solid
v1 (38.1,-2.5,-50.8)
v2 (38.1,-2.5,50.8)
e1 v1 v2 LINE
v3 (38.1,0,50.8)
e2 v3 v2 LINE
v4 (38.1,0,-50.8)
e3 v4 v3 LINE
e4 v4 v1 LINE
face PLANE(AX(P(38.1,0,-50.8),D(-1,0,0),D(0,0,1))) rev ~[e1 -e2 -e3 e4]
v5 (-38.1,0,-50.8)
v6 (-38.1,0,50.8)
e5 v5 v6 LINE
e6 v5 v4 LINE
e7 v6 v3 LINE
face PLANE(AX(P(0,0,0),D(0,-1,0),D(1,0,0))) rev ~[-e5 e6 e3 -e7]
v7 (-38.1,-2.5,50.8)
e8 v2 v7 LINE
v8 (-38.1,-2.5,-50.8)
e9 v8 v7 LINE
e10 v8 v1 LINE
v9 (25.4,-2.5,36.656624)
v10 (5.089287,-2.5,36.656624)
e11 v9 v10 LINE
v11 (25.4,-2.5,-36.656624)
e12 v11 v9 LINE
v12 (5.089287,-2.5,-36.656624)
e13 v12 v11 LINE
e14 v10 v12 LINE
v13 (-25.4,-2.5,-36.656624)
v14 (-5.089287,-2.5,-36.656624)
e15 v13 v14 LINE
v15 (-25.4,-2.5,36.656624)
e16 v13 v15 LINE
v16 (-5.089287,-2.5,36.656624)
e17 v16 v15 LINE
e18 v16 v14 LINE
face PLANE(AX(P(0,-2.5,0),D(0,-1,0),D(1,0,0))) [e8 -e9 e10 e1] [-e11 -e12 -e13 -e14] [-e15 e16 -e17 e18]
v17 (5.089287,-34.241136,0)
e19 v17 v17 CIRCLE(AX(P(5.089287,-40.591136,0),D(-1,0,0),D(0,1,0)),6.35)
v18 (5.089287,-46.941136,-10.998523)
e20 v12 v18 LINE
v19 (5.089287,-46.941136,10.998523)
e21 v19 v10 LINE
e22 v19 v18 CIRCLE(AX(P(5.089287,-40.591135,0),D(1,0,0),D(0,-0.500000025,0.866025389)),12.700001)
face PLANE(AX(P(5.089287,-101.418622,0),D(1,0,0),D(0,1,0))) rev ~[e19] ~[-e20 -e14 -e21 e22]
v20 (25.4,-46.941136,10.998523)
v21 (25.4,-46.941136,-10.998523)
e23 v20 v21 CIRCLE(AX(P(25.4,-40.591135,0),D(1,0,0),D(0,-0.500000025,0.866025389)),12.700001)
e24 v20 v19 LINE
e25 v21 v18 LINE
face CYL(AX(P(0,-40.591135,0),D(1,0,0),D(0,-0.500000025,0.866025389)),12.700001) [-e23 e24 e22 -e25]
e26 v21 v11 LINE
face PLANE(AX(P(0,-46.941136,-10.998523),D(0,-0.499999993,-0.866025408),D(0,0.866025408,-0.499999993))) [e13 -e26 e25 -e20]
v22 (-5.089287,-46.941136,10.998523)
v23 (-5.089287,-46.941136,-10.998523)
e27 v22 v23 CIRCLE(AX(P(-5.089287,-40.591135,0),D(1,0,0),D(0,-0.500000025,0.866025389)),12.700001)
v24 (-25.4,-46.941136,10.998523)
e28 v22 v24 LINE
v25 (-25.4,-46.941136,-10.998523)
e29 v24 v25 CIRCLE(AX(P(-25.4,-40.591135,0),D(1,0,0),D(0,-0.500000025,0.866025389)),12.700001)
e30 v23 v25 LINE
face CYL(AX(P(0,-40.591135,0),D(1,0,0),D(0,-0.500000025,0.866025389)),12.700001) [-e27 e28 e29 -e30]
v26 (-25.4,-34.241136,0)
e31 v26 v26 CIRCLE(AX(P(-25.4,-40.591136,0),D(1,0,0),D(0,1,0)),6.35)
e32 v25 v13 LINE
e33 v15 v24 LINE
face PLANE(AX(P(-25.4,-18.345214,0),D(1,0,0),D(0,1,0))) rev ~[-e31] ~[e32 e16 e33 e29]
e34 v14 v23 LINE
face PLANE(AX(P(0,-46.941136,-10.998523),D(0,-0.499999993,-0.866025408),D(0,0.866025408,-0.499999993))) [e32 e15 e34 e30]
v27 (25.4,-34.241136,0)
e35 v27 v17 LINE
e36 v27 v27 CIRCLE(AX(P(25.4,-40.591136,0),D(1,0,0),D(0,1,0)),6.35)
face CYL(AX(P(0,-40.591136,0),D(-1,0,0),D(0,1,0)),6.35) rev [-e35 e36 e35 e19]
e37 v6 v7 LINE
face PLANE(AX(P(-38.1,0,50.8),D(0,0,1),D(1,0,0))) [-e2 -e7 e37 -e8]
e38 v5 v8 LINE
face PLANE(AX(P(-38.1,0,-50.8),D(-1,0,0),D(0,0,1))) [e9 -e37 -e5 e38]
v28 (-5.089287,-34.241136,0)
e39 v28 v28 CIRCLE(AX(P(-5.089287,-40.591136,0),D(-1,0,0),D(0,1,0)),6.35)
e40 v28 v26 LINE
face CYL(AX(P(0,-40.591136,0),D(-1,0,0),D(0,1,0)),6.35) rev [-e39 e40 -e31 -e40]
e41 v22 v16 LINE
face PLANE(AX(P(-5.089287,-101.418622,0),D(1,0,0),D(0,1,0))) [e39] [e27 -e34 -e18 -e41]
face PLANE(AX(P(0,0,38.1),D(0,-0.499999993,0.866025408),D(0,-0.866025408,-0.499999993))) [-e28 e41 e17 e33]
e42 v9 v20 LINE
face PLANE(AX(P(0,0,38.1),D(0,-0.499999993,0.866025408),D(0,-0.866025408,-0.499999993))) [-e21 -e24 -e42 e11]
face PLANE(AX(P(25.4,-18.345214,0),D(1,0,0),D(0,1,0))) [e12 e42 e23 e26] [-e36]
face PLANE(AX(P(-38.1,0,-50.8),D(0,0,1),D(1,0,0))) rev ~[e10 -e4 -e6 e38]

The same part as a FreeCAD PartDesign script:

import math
import FreeCAD as App
import Part
import Sketcher
Q = App.Units.Quantity

doc = App.newDocument("Part")
body = doc.addObject("PartDesign::Body", "Body")

sketch1 = body.newObject("Sketcher::SketchObject", "Sketch")
sketch1.AttachmentSupport = (doc.getObject("XZ_Plane"), [""])
sketch1.MapMode = "FlatFace"
sketch1.addGeometry([
    Part.LineSegment(App.Vector(-38.1, 50.8, 0), App.Vector(-38.1, -50.8, 0)),
    Part.LineSegment(App.Vector(-38.1, -50.8, 0), App.Vector(38.1, -50.8, 0)),
    Part.LineSegment(App.Vector(38.1, -50.8, 0), App.Vector(38.1, 50.8, 0)),
    Part.LineSegment(App.Vector(38.1, 50.8, 0), App.Vector(-38.1, 50.8, 0)),
], False)
sketch1.addConstraint([
    Sketcher.Constraint("Coincident", 0, 2, 1, 1),
    Sketcher.Constraint("Coincident", 1, 2, 2, 1),
    Sketcher.Constraint("Coincident", 2, 2, 3, 1),
    Sketcher.Constraint("Coincident", 3, 2, 0, 1),
    Sketcher.Constraint("Vertical", 0),
    Sketcher.Constraint("Horizontal", 1),
    Sketcher.Constraint("Vertical", 2),
    Sketcher.Constraint("Horizontal", 3),
    Sketcher.Constraint("Symmetric", 0, 2, 2, 2, -1, 1),
    Sketcher.Constraint("DistanceX", 1, 1, 1, 2, Q("3 in")),
    Sketcher.Constraint("DistanceY", 0, 2, 0, 1, Q("4 in")),
])
pad1 = body.newObject("PartDesign::Pad", "Pad")
pad1.Profile = sketch1
pad1.Length = 2.5

sketch2 = body.newObject("Sketcher::SketchObject", "Sketch001")
sketch2.AttachmentSupport = (doc.getObject("YZ_Plane"), [""])
sketch2.MapMode = "FlatFace"
sketch2.addGeometry([
    Part.LineSegment(App.Vector(-46.941136, -10.998523, 0), App.Vector(0, -38.1, 0)),
    Part.LineSegment(App.Vector(0, -38.1, 0), App.Vector(0, 38.1, 0)),
    Part.LineSegment(App.Vector(0, 38.1, 0), App.Vector(-46.941136, 10.998523, 0)),
    Part.ArcOfCircle(Part.Circle(App.Vector(-40.591135, 0, 0), App.Vector(0, 0, 1), 12.700001), math.radians(120.000002), math.radians(239.999998)),
    Part.Circle(App.Vector(-40.591136, 0, 0), App.Vector(0, 0, 1), 6.35),
], False)
sketch2.addConstraint([
    Sketcher.Constraint("Coincident", 0, 2, 1, 1),
    Sketcher.Constraint("Coincident", 1, 2, 2, 1),
    Sketcher.Constraint("Tangent", 2, 2, 3, 1),
    Sketcher.Constraint("Tangent", 3, 2, 0, 1),
    Sketcher.Constraint("Vertical", 1),
    Sketcher.Constraint("Coincident", 4, 3, 3, 3),
    Sketcher.Constraint("Symmetric", 0, 2, 1, 2, -1, 1),
    Sketcher.Constraint("PointOnObject", 3, 3, -1),
    Sketcher.Constraint("Diameter", 4, Q("0.5 in")),
    Sketcher.Constraint("Radius", 3, Q("0.5 in")),
    Sketcher.Constraint("DistanceY", 1, 1, 1, 2, Q("3 in")),
    Sketcher.Constraint("Angle", 0, Q("-30 deg")),
])
pad2 = body.newObject("PartDesign::Pad", "Pad001")
pad2.Profile = sketch2
pad2.Length = Q("2 in")
pad2.Midplane = True

sketch3 = body.newObject("Sketcher::SketchObject", "Sketch002")
sketch3.AttachmentSupport = (doc.getObject("XY_Plane"), [""])
sketch3.MapMode = "FlatFace"
sketch3.addGeometry([
    Part.LineSegment(App.Vector(-5.089287, -2.5, 0), App.Vector(-5.089287, -101.418622, 0)),
    Part.LineSegment(App.Vector(-5.089287, -101.418622, 0), App.Vector(5.089287, -101.418622, 0)),
    Part.LineSegment(App.Vector(5.089287, -101.418622, 0), App.Vector(5.089287, -2.5, 0)),
    Part.LineSegment(App.Vector(5.089287, -2.5, 0), App.Vector(-5.089287, -2.5, 0)),
], False)
sketch3.addConstraint([
    Sketcher.Constraint("Coincident", 0, 2, 1, 1),
    Sketcher.Constraint("Coincident", 1, 2, 2, 1),
    Sketcher.Constraint("Coincident", 2, 2, 3, 1),
    Sketcher.Constraint("Coincident", 3, 2, 0, 1),
    Sketcher.Constraint("Vertical", 0),
    Sketcher.Constraint("Horizontal", 1),
    Sketcher.Constraint("Vertical", 2),
    Sketcher.Constraint("Horizontal", 3),
    Sketcher.Constraint("DistanceY", 0, 2, 0, 1, 98.918622),
    Sketcher.Constraint("DistanceY", 2, 2, -1, 1, 2.5),
    Sketcher.Constraint("DistanceX", 1, 1, 1, 2, 10.178574),
    Sketcher.Constraint("DistanceX", 0, 2, -1, 1, 5.089287),
])
pocket1 = body.newObject("PartDesign::Pocket", "Pocket")
pocket1.Profile = sketch3
pocket1.Length = Q("5.98 in")
pocket1.Midplane = True

doc.recompute()
